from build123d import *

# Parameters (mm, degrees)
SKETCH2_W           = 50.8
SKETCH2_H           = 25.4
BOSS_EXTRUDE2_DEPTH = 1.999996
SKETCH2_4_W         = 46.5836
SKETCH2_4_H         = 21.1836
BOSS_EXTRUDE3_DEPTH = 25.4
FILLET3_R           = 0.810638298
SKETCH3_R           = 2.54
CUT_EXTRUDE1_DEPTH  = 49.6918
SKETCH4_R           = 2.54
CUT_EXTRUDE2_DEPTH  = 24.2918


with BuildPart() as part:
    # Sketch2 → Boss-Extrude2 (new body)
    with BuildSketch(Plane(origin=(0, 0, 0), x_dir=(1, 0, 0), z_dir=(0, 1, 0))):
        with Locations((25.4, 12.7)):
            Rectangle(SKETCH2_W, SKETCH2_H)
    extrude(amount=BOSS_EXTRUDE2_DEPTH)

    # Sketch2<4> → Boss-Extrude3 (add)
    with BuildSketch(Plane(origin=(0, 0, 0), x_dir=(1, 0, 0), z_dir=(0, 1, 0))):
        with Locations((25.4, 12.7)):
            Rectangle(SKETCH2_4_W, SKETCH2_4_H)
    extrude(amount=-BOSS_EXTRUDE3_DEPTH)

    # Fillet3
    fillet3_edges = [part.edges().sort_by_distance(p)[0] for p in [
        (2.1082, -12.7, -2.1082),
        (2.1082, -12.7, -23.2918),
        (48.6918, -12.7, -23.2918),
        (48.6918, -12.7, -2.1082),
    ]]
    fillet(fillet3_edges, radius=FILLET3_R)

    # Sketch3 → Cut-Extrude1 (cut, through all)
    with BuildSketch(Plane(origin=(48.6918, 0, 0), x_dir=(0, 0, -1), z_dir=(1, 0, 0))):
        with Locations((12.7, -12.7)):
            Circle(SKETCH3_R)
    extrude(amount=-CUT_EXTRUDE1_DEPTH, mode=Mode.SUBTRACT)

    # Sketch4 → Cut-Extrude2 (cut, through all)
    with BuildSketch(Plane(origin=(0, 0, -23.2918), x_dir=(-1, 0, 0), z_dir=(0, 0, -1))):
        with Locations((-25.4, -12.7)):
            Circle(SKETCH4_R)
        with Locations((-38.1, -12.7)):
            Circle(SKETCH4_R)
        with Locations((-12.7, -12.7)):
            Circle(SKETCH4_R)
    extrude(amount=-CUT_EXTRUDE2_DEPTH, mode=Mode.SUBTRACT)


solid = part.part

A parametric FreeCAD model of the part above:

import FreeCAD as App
import Part
import Sketcher

V = App.Vector
Q = App.Units.Quantity


def edges_at(feature, points):
    """Names of the edges that pass closest to the given points."""
    edges = feature.Shape.Edges
    near = lambda p: min(range(len(edges)), key=lambda i: edges[i].distToShape(Part.Vertex(*p))[0])
    return sorted({f"Edge{near(p) + 1}" for p in points})


def add_polygon(sketch, points):
    """Adds a closed chain of lines whose ends are joined by coincident constraints."""
    first, n = sketch.GeometryCount, len(points)
    for a, b in zip(points, points[1:] + points[:1]):
        sketch.addGeometry(Part.LineSegment(App.Vector(*a, 0), App.Vector(*b, 0)), False)
    for i in range(n):
        sketch.addConstraint(Sketcher.Constraint("Coincident", first + i, 2, first + (i + 1) % n, 1))

doc = App.newDocument("Part")
body = doc.addObject("PartDesign::Body", "Body")

# Sketch on XZ plane
sketch1 = body.newObject("Sketcher::SketchObject", "Sketch")
sketch1.AttachmentSupport = (doc.getObject("XZ_Plane"), [""])
sketch1.MapMode = "FlatFace"
add_polygon(sketch1, [(0, -25.4), (0, 0), (50.8, 0), (50.8, -25.4)])  # lines 0-3
sketch1.addConstraint(Sketcher.Constraint("Vertical", 0))
sketch1.addConstraint(Sketcher.Constraint("Horizontal", 1))
sketch1.addConstraint(Sketcher.Constraint("Vertical", 2))
sketch1.addConstraint(Sketcher.Constraint("Horizontal", 3))
sketch1.addConstraint(Sketcher.Constraint("Coincident", 0, 2, -1, 1))
sketch1.addConstraint(Sketcher.Constraint("DistanceX", 1, 1, 1, 2, Q("2 in")))
sketch1.addConstraint(Sketcher.Constraint("DistanceY", 0, 1, 0, 2, Q("1 in")))
pad1 = body.newObject("PartDesign::Pad", "Pad")
pad1.Profile = sketch1
pad1.Length = 1.999996
pad1.Reversed = True

# Sketch on XZ plane
sketch2 = body.newObject("Sketcher::SketchObject", "Sketch001")
sketch2.AttachmentSupport = (doc.getObject("XZ_Plane"), [""])
sketch2.MapMode = "FlatFace"
add_polygon(sketch2, [(2.1082, -23.2918), (2.1082, -2.1082), (48.6918, -2.1082), (48.6918, -23.2918)])  # lines 0-3
sketch2.addConstraint(Sketcher.Constraint("Vertical", 0))
sketch2.addConstraint(Sketcher.Constraint("Horizontal", 1))
sketch2.addConstraint(Sketcher.Constraint("Vertical", 2))
sketch2.addConstraint(Sketcher.Constraint("Horizontal", 3))
sketch2.addConstraint(Sketcher.Constraint("DistanceX", 1, 1, 1, 2, Q("1.834 in")))
sketch2.addConstraint(Sketcher.Constraint("DistanceY", 0, 1, 0, 2, Q("0.834 in")))
sketch2.addConstraint(Sketcher.Constraint("DistanceX", -1, 1, 0, 2, Q("0.083 in")))
sketch2.addConstraint(Sketcher.Constraint("DistanceY", 0, 2, -1, 1, Q("0.083 in")))
pad2 = body.newObject("PartDesign::Pad", "Pad001")
pad2.Profile = sketch2
pad2.Length = Q("1 in")
doc.recompute()

fillet = body.newObject("PartDesign::Fillet", "Fillet")
fillet.Base = (pad2, edges_at(pad2, [
    (2.108, -12.7, -2.108),
    (2.108, -12.7, -23.292),
    (48.692, -12.7, -23.292),
    (48.692, -12.7, -2.108),
]))
fillet.Radius = 0.810638

# Sketch on YZ plane
sketch3 = body.newObject("Sketcher::SketchObject", "Sketch002")
sketch3.AttachmentSupport = (doc.getObject("YZ_Plane"), [""])
sketch3.MapMode = "FlatFace"
sketch3.AttachmentOffset = App.Placement(V(0, 0, 1.917 * 25.4), App.Rotation())
sketch3.addGeometry(Part.Circle(V(-12.7, -12.7, 0), V(0, 0, 1), 2.54), False)
sketch3.addConstraint(Sketcher.Constraint("Diameter", 0, Q("0.2 in")))
sketch3.addConstraint(Sketcher.Constraint("DistanceX", 0, 3, -1, 1, Q("0.5 in")))
sketch3.addConstraint(Sketcher.Constraint("DistanceY", 0, 3, -1, 1, Q("0.5 in")))
pocket1 = body.newObject("PartDesign::Pocket", "Pocket")
pocket1.Profile = sketch3
pocket1.Type = "ThroughAll"

# Sketch on XY plane
sketch4 = body.newObject("Sketcher::SketchObject", "Sketch003")
sketch4.AttachmentSupport = (doc.getObject("XY_Plane"), [""])
sketch4.MapMode = "FlatFace"
sketch4.AttachmentOffset = App.Placement(V(0, 0, -0.917 * 25.4), App.Rotation())
sketch4.addGeometry(Part.Circle(V(25.4, -12.7, 0), V(0, 0, 1), 2.54), False)
sketch4.addGeometry(Part.Circle(V(38.1, -12.7, 0), V(0, 0, 1), 2.54), False)
sketch4.addGeometry(Part.Circle(V(12.7, -12.7, 0), V(0, 0, 1), 2.54), False)
sketch4.addConstraint(Sketcher.Constraint("Equal", 0, 1))
sketch4.addConstraint(Sketcher.Constraint("Equal", 1, 2))
sketch4.addConstraint(Sketcher.Constraint("Horizontal", 0, 3, 1, 3))
sketch4.addConstraint(Sketcher.Constraint("Horizontal", 1, 3, 2, 3))
sketch4.addConstraint(Sketcher.Constraint("Diameter", 0, Q("0.2 in")))
sketch4.addConstraint(Sketcher.Constraint("DistanceX", -1, 1, 0, 3, Q("1 in")))
sketch4.addConstraint(Sketcher.Constraint("DistanceX", 2, 3, 1, 3, Q("1 in")))
sketch4.addConstraint(Sketcher.Constraint("DistanceY", 0, 3, -1, 1, Q("0.5 in")))
sketch4.addConstraint(Sketcher.Constraint("DistanceX", -1, 1, 1, 3, Q("1.5 in")))
pocket2 = body.newObject("PartDesign::Pocket", "Pocket001")
pocket2.Profile = sketch4
pocket2.Type = "ThroughAll"
pocket2.Reversed = True

doc.recompute()
